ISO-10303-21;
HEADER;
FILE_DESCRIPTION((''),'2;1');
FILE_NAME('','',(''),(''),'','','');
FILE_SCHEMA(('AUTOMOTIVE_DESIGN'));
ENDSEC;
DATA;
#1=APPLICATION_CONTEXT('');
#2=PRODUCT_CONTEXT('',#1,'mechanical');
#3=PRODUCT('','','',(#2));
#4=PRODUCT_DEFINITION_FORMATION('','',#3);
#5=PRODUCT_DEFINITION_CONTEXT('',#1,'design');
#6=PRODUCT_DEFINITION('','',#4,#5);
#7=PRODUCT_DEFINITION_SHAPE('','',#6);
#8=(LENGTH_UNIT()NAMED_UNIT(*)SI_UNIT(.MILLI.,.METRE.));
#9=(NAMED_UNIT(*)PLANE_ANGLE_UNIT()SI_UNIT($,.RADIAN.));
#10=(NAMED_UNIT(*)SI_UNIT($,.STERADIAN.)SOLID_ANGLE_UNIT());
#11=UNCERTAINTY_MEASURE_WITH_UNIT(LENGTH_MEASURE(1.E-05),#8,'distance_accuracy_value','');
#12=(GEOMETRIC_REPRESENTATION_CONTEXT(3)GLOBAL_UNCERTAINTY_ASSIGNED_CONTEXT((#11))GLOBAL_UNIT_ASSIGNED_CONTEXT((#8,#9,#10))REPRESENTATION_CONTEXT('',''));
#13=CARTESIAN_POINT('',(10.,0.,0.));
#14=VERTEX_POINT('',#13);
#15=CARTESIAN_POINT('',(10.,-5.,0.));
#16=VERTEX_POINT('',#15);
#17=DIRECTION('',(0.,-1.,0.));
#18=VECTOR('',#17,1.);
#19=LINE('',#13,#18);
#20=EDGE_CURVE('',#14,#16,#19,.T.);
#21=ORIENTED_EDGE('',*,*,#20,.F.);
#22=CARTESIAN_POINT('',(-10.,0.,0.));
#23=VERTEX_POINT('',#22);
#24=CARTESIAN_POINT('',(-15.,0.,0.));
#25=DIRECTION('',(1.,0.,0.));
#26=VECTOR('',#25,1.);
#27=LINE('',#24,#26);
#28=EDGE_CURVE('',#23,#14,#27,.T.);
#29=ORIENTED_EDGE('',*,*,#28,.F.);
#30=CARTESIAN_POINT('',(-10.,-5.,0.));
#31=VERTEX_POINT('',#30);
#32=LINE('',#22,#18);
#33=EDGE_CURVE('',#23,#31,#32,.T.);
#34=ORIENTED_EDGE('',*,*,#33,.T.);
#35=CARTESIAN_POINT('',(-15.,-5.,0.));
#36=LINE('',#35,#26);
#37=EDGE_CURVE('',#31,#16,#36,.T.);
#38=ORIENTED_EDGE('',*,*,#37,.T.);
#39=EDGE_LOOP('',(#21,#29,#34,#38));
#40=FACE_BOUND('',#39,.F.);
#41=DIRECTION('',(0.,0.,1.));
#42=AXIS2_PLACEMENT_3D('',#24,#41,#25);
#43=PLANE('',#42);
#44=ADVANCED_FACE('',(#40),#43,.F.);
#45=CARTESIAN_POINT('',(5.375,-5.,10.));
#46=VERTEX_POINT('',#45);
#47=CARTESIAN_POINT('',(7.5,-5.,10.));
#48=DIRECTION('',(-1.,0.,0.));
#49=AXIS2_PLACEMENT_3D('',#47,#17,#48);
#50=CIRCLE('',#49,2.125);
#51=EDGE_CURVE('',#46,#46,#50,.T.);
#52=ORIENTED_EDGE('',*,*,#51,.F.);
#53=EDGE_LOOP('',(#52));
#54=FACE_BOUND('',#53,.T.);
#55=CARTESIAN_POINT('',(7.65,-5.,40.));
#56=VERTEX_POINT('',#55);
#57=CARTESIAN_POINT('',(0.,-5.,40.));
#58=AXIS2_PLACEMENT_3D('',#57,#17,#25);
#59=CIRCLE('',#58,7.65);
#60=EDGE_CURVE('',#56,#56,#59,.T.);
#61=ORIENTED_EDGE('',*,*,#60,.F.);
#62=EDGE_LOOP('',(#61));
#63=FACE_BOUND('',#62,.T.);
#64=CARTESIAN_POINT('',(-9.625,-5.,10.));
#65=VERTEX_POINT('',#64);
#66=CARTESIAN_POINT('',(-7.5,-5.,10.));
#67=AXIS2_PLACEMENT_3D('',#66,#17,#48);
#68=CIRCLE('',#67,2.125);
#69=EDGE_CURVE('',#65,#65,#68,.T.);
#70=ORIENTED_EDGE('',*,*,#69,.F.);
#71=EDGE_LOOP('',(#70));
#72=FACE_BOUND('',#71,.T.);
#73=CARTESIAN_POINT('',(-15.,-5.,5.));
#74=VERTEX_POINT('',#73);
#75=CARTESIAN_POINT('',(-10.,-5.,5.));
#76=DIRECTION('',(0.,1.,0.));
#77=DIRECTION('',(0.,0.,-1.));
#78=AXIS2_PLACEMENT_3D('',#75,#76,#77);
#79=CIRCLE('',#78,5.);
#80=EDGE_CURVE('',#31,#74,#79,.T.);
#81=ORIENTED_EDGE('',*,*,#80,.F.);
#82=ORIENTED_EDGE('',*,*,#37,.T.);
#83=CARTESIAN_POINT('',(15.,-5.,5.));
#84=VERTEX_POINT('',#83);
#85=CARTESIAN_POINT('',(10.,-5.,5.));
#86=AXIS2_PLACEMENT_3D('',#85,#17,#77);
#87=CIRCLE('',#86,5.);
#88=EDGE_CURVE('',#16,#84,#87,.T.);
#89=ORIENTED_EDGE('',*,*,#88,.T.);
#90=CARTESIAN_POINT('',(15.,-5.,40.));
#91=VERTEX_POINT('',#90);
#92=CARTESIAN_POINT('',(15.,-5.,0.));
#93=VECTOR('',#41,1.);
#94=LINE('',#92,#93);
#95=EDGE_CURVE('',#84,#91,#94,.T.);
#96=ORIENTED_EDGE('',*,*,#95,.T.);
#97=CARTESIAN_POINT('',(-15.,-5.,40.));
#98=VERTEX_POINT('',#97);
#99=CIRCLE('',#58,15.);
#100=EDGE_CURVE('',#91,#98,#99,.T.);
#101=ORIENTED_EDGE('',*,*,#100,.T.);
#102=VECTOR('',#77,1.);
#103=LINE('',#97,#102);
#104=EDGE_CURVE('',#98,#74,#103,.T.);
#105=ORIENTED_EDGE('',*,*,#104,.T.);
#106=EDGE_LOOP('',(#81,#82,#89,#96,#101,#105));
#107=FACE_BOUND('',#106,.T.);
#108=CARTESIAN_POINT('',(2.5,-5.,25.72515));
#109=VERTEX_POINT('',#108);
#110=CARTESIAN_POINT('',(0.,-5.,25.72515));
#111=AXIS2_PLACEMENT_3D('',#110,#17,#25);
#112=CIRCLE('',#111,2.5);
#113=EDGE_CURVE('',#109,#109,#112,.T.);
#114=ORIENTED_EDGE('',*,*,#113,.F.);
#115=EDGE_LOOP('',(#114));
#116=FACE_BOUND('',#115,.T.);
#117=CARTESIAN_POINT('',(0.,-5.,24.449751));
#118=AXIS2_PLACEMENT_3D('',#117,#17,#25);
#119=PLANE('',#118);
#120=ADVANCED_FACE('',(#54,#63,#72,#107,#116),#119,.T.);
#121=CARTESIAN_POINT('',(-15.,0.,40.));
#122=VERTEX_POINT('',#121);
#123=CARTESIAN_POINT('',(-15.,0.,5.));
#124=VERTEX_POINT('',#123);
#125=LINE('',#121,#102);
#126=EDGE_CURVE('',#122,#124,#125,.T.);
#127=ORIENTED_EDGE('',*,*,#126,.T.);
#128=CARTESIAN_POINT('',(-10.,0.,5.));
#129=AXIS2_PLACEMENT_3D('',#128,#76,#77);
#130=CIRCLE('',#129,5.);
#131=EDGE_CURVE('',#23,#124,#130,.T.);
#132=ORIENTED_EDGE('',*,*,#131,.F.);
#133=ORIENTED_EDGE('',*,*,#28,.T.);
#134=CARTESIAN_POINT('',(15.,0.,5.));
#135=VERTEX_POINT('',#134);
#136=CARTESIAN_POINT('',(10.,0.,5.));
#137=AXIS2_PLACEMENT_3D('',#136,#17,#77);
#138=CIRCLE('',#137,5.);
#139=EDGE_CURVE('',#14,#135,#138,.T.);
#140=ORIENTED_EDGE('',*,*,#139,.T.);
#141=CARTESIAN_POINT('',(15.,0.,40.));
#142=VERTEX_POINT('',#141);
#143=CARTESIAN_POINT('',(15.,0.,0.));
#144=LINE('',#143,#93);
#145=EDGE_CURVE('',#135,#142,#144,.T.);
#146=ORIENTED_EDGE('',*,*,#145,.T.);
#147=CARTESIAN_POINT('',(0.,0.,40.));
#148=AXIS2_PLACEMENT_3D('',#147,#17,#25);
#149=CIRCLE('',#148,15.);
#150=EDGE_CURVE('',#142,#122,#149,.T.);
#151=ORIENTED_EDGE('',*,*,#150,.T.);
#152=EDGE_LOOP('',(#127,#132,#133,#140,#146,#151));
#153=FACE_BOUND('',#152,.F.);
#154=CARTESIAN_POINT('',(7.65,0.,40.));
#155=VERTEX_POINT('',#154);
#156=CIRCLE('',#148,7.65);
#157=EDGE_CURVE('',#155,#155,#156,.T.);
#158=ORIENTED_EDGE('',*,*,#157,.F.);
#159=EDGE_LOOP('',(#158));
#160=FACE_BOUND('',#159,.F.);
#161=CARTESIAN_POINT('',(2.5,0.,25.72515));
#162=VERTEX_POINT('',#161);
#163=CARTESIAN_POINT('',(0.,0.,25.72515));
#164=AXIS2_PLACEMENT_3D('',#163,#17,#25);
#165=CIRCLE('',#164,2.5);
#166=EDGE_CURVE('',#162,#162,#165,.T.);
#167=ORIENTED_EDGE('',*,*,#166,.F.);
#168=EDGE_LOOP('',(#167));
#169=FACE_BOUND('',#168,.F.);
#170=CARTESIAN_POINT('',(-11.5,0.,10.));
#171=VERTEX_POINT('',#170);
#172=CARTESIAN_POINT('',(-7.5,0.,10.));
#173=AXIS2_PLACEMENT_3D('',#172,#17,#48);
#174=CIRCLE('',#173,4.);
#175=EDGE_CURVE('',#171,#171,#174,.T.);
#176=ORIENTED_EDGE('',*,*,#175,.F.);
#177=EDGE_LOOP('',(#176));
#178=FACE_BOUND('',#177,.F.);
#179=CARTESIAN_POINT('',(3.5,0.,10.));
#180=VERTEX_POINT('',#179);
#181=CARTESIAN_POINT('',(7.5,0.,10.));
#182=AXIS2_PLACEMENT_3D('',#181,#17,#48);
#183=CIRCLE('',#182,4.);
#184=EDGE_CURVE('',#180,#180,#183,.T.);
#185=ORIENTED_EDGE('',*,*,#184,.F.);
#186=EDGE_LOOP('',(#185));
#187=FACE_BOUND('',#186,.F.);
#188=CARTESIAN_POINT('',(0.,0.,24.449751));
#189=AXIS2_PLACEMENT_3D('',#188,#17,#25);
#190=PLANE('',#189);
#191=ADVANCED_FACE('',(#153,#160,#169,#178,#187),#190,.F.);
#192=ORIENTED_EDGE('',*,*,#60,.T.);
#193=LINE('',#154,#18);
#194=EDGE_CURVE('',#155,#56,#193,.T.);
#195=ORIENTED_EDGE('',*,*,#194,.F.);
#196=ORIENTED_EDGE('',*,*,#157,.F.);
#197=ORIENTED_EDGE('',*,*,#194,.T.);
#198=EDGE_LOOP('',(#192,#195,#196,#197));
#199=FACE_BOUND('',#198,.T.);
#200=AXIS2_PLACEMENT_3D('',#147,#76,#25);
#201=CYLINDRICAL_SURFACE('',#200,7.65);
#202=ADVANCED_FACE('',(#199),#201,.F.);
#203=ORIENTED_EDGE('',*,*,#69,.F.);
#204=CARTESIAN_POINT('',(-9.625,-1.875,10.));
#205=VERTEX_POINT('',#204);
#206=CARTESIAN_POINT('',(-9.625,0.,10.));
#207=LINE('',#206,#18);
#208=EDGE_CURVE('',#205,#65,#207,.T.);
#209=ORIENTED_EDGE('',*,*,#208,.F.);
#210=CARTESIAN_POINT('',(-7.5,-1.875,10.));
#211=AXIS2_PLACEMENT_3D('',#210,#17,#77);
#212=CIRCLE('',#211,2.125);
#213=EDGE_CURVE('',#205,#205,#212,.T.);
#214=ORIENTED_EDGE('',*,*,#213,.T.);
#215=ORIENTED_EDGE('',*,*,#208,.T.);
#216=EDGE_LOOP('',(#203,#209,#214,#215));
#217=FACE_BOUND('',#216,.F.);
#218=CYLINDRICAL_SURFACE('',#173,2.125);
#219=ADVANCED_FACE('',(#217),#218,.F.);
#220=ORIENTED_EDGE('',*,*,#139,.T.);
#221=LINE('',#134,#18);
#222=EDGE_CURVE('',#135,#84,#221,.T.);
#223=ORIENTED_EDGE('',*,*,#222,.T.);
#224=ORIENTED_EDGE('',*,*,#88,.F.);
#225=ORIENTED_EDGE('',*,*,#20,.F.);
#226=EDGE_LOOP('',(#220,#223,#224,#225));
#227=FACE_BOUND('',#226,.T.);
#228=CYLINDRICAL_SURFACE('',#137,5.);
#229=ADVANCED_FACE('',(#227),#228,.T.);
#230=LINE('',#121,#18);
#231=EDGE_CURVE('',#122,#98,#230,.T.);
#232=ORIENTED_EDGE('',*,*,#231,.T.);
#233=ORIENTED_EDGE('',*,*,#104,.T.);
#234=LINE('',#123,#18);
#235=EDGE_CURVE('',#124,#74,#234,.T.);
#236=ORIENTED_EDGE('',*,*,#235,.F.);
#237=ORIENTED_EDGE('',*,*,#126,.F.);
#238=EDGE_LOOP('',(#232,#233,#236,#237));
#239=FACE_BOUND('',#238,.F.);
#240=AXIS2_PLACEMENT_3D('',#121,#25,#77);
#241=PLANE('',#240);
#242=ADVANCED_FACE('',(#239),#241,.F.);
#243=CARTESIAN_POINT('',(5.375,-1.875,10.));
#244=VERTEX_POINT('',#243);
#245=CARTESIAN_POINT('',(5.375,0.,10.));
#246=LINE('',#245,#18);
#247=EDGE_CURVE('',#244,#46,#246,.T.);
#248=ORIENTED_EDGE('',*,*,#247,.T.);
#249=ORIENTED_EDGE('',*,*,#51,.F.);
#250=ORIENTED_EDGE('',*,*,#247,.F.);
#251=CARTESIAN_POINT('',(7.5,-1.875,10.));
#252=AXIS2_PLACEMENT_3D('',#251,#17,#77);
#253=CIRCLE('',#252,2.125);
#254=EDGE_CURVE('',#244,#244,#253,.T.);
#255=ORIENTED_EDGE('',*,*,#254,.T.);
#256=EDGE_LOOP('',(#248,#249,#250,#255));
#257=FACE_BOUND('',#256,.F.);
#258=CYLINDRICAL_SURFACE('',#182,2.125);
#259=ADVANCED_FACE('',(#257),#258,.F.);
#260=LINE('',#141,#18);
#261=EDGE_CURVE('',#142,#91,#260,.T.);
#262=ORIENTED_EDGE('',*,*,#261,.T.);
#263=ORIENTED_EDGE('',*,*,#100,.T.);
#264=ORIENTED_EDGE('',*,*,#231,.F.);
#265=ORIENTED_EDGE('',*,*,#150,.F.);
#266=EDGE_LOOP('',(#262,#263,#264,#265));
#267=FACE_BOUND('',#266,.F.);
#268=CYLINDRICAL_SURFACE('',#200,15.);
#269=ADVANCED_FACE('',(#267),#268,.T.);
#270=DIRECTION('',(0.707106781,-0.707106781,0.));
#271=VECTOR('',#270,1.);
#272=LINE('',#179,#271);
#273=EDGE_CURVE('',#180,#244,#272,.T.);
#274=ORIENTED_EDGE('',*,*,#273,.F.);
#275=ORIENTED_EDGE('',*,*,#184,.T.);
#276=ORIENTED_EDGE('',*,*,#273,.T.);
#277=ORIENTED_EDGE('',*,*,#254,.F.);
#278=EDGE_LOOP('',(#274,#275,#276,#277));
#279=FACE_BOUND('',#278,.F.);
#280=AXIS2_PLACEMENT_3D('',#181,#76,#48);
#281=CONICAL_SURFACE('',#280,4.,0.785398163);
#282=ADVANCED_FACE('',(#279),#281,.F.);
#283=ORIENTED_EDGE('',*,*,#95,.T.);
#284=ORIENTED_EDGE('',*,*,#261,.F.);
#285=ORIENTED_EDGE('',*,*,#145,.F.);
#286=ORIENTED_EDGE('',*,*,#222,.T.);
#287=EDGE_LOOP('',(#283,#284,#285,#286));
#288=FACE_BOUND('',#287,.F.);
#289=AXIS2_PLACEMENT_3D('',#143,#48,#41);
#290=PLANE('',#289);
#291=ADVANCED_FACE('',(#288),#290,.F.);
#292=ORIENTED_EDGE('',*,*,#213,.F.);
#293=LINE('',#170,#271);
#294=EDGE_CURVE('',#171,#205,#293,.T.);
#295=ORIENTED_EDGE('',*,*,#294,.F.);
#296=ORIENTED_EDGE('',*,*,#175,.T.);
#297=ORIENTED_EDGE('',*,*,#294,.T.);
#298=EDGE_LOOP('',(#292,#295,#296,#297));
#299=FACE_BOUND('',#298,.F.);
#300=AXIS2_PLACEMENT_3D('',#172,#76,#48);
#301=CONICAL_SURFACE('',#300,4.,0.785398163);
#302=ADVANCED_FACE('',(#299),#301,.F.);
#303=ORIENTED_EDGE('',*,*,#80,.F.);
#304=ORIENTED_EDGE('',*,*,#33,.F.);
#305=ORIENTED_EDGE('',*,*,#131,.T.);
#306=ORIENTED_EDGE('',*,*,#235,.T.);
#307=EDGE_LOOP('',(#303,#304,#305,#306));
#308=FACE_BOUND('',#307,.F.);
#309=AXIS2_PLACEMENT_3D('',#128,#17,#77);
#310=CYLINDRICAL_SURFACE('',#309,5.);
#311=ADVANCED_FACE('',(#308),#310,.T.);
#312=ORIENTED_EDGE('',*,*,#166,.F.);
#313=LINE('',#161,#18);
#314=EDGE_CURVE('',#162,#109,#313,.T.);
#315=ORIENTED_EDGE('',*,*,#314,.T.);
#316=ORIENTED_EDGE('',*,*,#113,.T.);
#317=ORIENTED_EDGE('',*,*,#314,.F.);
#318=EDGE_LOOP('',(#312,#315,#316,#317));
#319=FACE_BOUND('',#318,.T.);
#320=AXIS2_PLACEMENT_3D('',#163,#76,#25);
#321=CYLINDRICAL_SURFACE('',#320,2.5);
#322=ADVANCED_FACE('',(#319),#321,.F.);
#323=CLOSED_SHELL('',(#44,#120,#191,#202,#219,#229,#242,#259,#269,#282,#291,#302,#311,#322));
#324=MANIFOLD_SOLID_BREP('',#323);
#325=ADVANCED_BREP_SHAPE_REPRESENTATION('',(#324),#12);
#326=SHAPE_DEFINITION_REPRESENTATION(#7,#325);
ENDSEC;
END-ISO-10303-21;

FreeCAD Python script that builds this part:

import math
import FreeCAD as App
import Part
import Sketcher
Q = App.Units.Quantity


def edges_at(feature, points):
    """Names of the edges that pass closest to the given points."""
    edges = feature.Shape.Edges
    near = lambda p: min(range(len(edges)), key=lambda i: edges[i].distToShape(Part.Vertex(*p))[0])
    return sorted({f"Edge{near(p) + 1}" for p in points})

doc = App.newDocument("Part")
body = doc.addObject("PartDesign::Body", "Body")

# Sketch on XZ plane
sketch1 = body.newObject("Sketcher::SketchObject", "Sketch")
sketch1.AttachmentSupport = (doc.getObject("XZ_Plane"), [""])
sketch1.MapMode = "FlatFace"
sketch1.addGeometry([
    Part.LineSegment(App.Vector(-15, 0, 0), App.Vector(15, 0, 0)),  # 0
    Part.LineSegment(App.Vector(15, 0, 0), App.Vector(15, 40, 0)),  # 1
    Part.ArcOfCircle(Part.Circle(App.Vector(0, 40, 0), App.Vector(0, 0, 1), 15), math.radians(0), math.radians(180)),  # 2
    Part.LineSegment(App.Vector(-15, 40, 0), App.Vector(-15, 0, 0)),  # 3
    Part.Circle(App.Vector(0, 25.7, 0), App.Vector(0, 0, 1), 2.5),  # 4
    Part.Circle(App.Vector(0, 40, 0), App.Vector(0, 0, 1), 7.7),  # 5
], False)
sketch1.addConstraint([
    Sketcher.Constraint("Coincident", 0, 2, 1, 1),
    Sketcher.Constraint("Tangent", 1, 2, 2, 1),
    Sketcher.Constraint("Tangent", 2, 2, 3, 1),
    Sketcher.Constraint("Coincident", 3, 2, 0, 1),
    Sketcher.Constraint("Horizontal", 0),
    Sketcher.Constraint("Vertical", 1),
    Sketcher.Constraint("Vertical", 3),
    Sketcher.Constraint("Coincident", 5, 3, 2, 3),
    Sketcher.Constraint("Symmetric", 0, 2, 3, 2, -1, 1),
    Sketcher.Constraint("PointOnObject", 4, 3, -2),
    Sketcher.Constraint("Diameter", 4, Q("5 mm")),
    Sketcher.Constraint("Radius", 2, Q("15 mm")),
    Sketcher.Constraint("Diameter", 5, Q("15.3 mm")),
    Sketcher.Constraint("DistanceY", 1, 1, 1, 2, Q("40 mm")),
    Sketcher.Constraint("DistanceY", -1, 1, 4, 3, Q("25.72515 mm")),
])
pad1 = body.newObject("PartDesign::Pad", "Pad")
pad1.Profile = sketch1
pad1.Length = 5

# Sketch on XZ plane
sketch2 = body.newObject("Sketcher::SketchObject", "Sketch001")
sketch2.AttachmentSupport = (doc.getObject("XZ_Plane"), [""])
sketch2.MapMode = "FlatFace"
sketch2.addGeometry([
    Part.Circle(App.Vector(-7.5, 10, 0), App.Vector(0, 0, 1), 2.1),
    Part.Circle(App.Vector(7.5, 10, 0), App.Vector(0, 0, 1), 2.1),
], False)
sketch2.addConstraint([
    Sketcher.Constraint("Equal", 0, 1),
    Sketcher.Constraint("Symmetric", 0, 3, 1, 3, -2),
    Sketcher.Constraint("Diameter", 0, Q("4.25 mm")),
    Sketcher.Constraint("DistanceY", -1, 1, 0, 3, Q("10 mm")),
    Sketcher.Constraint("DistanceX", 0, 3, 1, 3, Q("15 mm")),
])
doc.recompute()
hole = body.newObject("PartDesign::Hole", "Hole")
hole.Profile = sketch2
hole.ThreadType = "None"
hole.Diameter = 4.25
hole.DepthType = "ThroughAll"
hole.HoleCutType = "Countersink"
hole.HoleCutDiameter = 8
hole.HoleCutCountersinkAngle = 90
hole.Reversed = True
doc.recompute()

fillet = body.newObject("PartDesign::Fillet", "Fillet")
fillet.Base = (hole, edges_at(hole, [(-15, -2.5, 0), (15, -2.5, 0)]))
fillet.Radius = 5

doc.recompute()
